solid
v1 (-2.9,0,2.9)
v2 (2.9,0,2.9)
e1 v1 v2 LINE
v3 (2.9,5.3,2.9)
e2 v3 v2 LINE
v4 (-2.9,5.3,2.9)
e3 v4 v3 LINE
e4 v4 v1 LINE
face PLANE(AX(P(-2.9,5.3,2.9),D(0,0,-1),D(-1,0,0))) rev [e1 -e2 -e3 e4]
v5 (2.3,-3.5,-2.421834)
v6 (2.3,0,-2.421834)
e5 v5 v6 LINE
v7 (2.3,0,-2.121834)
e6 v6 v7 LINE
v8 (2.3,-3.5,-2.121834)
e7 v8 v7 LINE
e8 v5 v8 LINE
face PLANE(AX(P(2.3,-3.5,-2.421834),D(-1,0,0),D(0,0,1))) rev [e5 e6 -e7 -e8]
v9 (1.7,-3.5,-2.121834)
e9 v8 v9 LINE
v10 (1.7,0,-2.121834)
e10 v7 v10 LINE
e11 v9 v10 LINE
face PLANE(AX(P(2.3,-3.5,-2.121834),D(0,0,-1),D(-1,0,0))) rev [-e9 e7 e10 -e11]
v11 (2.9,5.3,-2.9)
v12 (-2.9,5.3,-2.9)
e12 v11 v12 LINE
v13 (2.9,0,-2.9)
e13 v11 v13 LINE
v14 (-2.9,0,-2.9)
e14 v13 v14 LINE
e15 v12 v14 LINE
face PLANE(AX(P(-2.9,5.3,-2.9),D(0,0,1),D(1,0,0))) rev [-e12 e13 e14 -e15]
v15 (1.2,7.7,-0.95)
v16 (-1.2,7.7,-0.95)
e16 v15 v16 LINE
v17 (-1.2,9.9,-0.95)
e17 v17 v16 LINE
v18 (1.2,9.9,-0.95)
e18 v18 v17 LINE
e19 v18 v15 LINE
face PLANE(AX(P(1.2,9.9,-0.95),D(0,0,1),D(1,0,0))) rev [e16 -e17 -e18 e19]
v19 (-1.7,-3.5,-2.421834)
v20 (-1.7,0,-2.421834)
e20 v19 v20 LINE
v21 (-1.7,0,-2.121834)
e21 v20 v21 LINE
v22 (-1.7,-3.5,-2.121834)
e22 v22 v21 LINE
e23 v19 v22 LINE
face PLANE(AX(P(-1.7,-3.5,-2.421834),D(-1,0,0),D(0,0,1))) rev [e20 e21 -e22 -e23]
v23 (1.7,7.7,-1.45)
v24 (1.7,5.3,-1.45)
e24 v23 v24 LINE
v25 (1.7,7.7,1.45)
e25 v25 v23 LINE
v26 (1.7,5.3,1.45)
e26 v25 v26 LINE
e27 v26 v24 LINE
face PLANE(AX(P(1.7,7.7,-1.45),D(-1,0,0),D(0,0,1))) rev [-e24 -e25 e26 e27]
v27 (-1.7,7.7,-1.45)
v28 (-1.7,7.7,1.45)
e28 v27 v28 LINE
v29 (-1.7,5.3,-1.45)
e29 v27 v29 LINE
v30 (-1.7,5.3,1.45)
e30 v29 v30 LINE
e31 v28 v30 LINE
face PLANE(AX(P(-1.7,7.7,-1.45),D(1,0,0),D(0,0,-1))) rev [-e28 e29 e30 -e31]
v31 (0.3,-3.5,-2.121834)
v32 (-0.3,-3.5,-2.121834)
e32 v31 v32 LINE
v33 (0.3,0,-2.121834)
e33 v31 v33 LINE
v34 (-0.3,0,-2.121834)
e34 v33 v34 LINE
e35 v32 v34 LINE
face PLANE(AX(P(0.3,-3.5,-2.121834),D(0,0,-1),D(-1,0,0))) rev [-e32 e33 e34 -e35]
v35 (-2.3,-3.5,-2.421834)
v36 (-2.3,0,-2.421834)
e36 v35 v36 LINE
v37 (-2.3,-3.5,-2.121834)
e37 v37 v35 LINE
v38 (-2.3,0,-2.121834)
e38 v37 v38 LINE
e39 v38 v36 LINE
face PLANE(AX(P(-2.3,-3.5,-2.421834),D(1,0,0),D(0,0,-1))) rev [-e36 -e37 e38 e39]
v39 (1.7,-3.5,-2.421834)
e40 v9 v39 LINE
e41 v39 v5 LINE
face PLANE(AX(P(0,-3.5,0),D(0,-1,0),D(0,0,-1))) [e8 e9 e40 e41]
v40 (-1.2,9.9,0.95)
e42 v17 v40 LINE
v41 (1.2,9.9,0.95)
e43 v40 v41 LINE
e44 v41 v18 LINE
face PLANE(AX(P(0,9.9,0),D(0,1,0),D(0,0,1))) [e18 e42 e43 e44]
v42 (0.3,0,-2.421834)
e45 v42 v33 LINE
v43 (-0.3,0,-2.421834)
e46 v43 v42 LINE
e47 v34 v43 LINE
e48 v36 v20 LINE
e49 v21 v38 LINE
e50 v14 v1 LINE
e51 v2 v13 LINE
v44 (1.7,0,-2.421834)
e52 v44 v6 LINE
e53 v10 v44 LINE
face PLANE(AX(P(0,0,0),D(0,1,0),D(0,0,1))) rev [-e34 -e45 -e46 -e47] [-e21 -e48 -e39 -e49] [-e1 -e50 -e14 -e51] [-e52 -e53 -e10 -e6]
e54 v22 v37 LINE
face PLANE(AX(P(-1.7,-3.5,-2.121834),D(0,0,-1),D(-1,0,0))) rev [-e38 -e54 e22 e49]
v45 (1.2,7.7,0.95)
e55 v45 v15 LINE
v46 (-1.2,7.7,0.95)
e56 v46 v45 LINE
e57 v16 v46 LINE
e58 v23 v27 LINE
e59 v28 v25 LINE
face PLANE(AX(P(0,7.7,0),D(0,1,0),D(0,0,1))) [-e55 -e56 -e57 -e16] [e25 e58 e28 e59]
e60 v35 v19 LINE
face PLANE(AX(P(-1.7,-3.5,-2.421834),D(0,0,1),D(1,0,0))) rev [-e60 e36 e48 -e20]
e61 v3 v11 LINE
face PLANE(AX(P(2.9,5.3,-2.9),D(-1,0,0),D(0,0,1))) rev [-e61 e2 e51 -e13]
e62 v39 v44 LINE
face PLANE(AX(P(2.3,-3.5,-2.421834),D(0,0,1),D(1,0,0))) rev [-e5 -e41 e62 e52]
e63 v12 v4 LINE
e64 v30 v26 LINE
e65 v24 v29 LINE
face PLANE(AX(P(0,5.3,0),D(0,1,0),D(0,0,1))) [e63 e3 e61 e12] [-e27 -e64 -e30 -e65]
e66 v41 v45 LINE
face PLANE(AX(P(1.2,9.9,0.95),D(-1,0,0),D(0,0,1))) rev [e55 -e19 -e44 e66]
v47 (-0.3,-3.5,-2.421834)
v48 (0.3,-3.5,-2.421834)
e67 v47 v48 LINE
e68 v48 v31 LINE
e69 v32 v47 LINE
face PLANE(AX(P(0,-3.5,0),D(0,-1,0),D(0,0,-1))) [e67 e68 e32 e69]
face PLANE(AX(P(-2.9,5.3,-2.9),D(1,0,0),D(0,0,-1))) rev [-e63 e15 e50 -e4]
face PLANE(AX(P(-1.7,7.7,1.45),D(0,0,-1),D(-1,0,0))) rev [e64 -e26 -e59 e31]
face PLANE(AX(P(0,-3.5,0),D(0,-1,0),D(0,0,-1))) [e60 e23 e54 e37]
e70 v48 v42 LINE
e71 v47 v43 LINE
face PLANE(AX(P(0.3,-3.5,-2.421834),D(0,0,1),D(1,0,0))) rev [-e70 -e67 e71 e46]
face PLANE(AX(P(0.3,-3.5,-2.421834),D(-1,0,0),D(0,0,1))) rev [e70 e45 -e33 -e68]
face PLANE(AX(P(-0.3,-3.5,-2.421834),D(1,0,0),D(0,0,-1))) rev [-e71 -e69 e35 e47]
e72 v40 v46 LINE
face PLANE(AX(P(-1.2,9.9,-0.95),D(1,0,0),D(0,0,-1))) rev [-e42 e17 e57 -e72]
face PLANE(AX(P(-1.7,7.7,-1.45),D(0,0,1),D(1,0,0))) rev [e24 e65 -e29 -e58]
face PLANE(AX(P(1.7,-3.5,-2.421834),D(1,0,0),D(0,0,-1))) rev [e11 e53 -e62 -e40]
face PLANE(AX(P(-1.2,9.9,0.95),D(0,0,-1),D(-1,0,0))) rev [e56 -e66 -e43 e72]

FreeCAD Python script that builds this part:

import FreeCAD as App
import Part
import Sketcher
from FreeCAD import Vector


def add_polygon(sketch, points):
    """Adds a closed chain of lines whose ends are joined by coincident constraints."""
    first, n = sketch.GeometryCount, len(points)
    for a, b in zip(points, points[1:] + points[:1]):
        sketch.addGeometry(Part.LineSegment(App.Vector(*a, 0), App.Vector(*b, 0)), False)
    for i in range(n):
        sketch.addConstraint(Sketcher.Constraint("Coincident", first + i, 2, first + (i + 1) % n, 1))

doc = App.newDocument("Part")
body = doc.addObject("PartDesign::Body", "Body")

# Sketch on XZ plane
sketch1 = body.newObject("Sketcher::SketchObject", "Sketch")
sketch1.AttachmentSupport = (doc.getObject("XZ_Plane"), [""])
sketch1.MapMode = "FlatFace"
add_polygon(sketch1, [(-3, -3), (-3, 3), (3, 3), (3, -3)])  # lines 0-3
sketch1.addConstraint(Sketcher.Constraint("Vertical", 0))
sketch1.addConstraint(Sketcher.Constraint("Horizontal", 1))
sketch1.addConstraint(Sketcher.Constraint("Vertical", 2))
sketch1.addConstraint(Sketcher.Constraint("Horizontal", 3))
sketch1.addConstraint(Sketcher.Constraint("Symmetric", 0, 2, 2, 2, -1, 1))
sketch1.addConstraint(Sketcher.Constraint("Equal", 3, 0))
sketch1.addConstraint(Sketcher.Constraint("DistanceX", 1, 1, 1, 2, 5.8))
pad1 = body.newObject("PartDesign::Pad", "Pad")
pad1.Profile = sketch1
pad1.Length = 5.3
pad1.Reversed = True

# Sketch on XZ plane
sketch2 = body.newObject("Sketcher::SketchObject", "Sketch001")
sketch2.AttachmentSupport = (doc.getObject("XZ_Plane"), [""])
sketch2.MapMode = "FlatFace"
sketch2.AttachmentOffset = App.Placement(Vector(0, 0, -5.3), App.Rotation())
add_polygon(sketch2, [(-1.7, -1.4), (-1.7, 1.4), (1.7, 1.4), (1.7, -1.4)])  # lines 0-3
sketch2.addConstraint(Sketcher.Constraint("Vertical", 0))
sketch2.addConstraint(Sketcher.Constraint("Horizontal", 1))
sketch2.addConstraint(Sketcher.Constraint("Vertical", 2))
sketch2.addConstraint(Sketcher.Constraint("Horizontal", 3))
sketch2.addConstraint(Sketcher.Constraint("Symmetric", 0, 2, 2, 2, -1, 1))
sketch2.addConstraint(Sketcher.Constraint("DistanceX", 1, 1, 1, 2, 3.4))
sketch2.addConstraint(Sketcher.Constraint("DistanceY", 0, 1, 0, 2, 2.9))
pad2 = body.newObject("PartDesign::Pad", "Pad001")
pad2.Profile = sketch2
pad2.Length = 2.4
pad2.Reversed = True

# Sketch on XZ plane
sketch3 = body.newObject("Sketcher::SketchObject", "Sketch002")
sketch3.AttachmentSupport = (doc.getObject("XZ_Plane"), [""])
sketch3.MapMode = "FlatFace"
sketch3.AttachmentOffset = App.Placement(Vector(0, 0, -7.7), App.Rotation())
add_polygon(sketch3, [(-1.2, -0.9), (-1.2, 0.9), (1.2, 0.9), (1.2, -0.9)])  # lines 0-3
sketch3.addConstraint(Sketcher.Constraint("Vertical", 0))
sketch3.addConstraint(Sketcher.Constraint("Horizontal", 1))
sketch3.addConstraint(Sketcher.Constraint("Vertical", 2))
sketch3.addConstraint(Sketcher.Constraint("Horizontal", 3))
sketch3.addConstraint(Sketcher.Constraint("Symmetric", 0, 2, 2, 2, -1, 1))
sketch3.addConstraint(Sketcher.Constraint("DistanceX", 1, 1, 1, 2, 2.4))
sketch3.addConstraint(Sketcher.Constraint("DistanceY", 0, 1, 0, 2, 1.9))
pad3 = body.newObject("PartDesign::Pad", "Pad002")
pad3.Profile = sketch3
pad3.Length = 2.2
pad3.Reversed = True

# Sketch on XZ plane
sketch4 = body.newObject("Sketcher::SketchObject", "Sketch003")
sketch4.AttachmentSupport = (doc.getObject("XZ_Plane"), [""])
sketch4.MapMode = "FlatFace"
add_polygon(sketch4, [(-0.3, -2.12), (-0.3, -2.42), (0.3, -2.42), (0.3, -2.12)])  # lines 0-3
add_polygon(sketch4, [(-2.3, -2.12), (-2.3, -2.42), (-1.7, -2.42), (-1.7, -2.12)])  # lines 4-7
add_polygon(sketch4, [(1.7, -2.12), (1.7, -2.42), (2.3, -2.42), (2.3, -2.12)])  # lines 8-11
sketch4.addConstraint(Sketcher.Constraint("Vertical", 0))
sketch4.addConstraint(Sketcher.Constraint("Horizontal", 1))
sketch4.addConstraint(Sketcher.Constraint("Vertical", 2))
sketch4.addConstraint(Sketcher.Constraint("Horizontal", 3))
sketch4.addConstraint(Sketcher.Constraint("Vertical", 4))
sketch4.addConstraint(Sketcher.Constraint("Horizontal", 5))
sketch4.addConstraint(Sketcher.Constraint("Vertical", 6))
sketch4.addConstraint(Sketcher.Constraint("Horizontal", 7))
sketch4.addConstraint(Sketcher.Constraint("Vertical", 8))
sketch4.addConstraint(Sketcher.Constraint("Horizontal", 9))
sketch4.addConstraint(Sketcher.Constraint("Vertical", 10))
sketch4.addConstraint(Sketcher.Constraint("Horizontal", 11))
sketch4.addConstraint(Sketcher.Constraint("Symmetric", 5, 2, 8, 2, -2))
sketch4.addConstraint(Sketcher.Constraint("Symmetric", 7, 2, 10, 2, -2))
sketch4.addConstraint(Sketcher.Constraint("Horizontal", 1, 2, 4, 2))
sketch4.addConstraint(Sketcher.Constraint("Horizontal", 3, 2, 6, 2))
sketch4.addConstraint(Sketcher.Constraint("Equal", 3, 5))
sketch4.addConstraint(Sketcher.Constraint("DistanceX", 1, 1, 1, 2, 0.6))
sketch4.addConstraint(Sketcher.Constraint("DistanceY", 0, 2, 0, 1, 0.3))
sketch4.addConstraint(Sketcher.Constraint("DistanceX", 4, 2, 0, 2, 2.0))
sketch4.addConstraint(Sketcher.Constraint("DistanceX", 0, 2, 8, 2, 2.0))
sketch4.addConstraint(Sketcher.Constraint("DistanceY", 0, 2, -1, 1, 2.421834))
pad4 = body.newObject("PartDesign::Pad", "Pad003")
pad4.Profile = sketch4
pad4.Length = 3.5

doc.recompute()
